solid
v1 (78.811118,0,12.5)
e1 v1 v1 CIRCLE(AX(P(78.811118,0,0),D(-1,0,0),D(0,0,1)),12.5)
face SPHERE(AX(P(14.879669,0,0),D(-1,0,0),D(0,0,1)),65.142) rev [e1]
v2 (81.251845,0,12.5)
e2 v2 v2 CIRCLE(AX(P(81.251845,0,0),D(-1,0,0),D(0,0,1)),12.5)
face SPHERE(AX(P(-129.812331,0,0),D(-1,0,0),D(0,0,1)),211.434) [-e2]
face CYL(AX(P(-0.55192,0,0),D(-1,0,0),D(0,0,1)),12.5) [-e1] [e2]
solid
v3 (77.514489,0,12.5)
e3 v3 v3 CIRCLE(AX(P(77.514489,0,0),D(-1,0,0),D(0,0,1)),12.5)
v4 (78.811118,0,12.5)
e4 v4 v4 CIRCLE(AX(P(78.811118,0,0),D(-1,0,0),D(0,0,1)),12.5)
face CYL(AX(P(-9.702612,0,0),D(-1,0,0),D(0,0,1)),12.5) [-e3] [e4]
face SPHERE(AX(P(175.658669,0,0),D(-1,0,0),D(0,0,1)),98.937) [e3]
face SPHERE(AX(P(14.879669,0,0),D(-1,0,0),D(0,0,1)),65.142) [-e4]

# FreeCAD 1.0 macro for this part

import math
import FreeCAD as App
import Part
import Sketcher
from FreeCAD import Vector
Q = App.Units.Quantity

doc = App.newDocument("Part")
body = doc.addObject("PartDesign::Body", "Body")

# Sketch on XZ plane
sketch1 = doc.addObject("Sketcher::SketchObject", "Sketch")
body.addObject(sketch1)
sketch1.AttachmentSupport = (doc.XZ_Plane, [""])
sketch1.MapMode = "FlatFace"
sketch1.addGeometry([
    Part.ArcOfCircle(Part.Circle(Vector(175.7, 0, 0), Vector(0, 0, 1), 98.9), math.radians(180), math.radians(187.26)),
    Part.LineSegment(Vector(76.7, 0, 0), Vector(80, 0, 0)),
    Part.ArcOfCircle(Part.Circle(Vector(14.9, 0, 0), Vector(0, 0, 1), 65.1), math.radians(-11.06), math.radians(0)),
    Part.LineSegment(Vector(78.8, -12.5, 0), Vector(77.5, -12.5, 0)),
], False)
sketch1.addConstraint([
    Sketcher.Constraint("Coincident", 0, 1, 1, 1),
    Sketcher.Constraint("Coincident", 1, 2, 2, 2),
    Sketcher.Constraint("Coincident", 2, 1, 3, 1),
    Sketcher.Constraint("Coincident", 3, 2, 0, 2),
    Sketcher.Constraint("Horizontal", 1),
    Sketcher.Constraint("Horizontal", 3),
    Sketcher.Constraint("PointOnObject", 0, 3, -1),
    Sketcher.Constraint("PointOnObject", 2, 3, -1),
    Sketcher.Constraint("PointOnObject", 0, 1, -1),
    Sketcher.Constraint("DistanceX", 1, 1, 1, 2, Q("3.3 mm")),
    Sketcher.Constraint("Radius", 0, Q("98.937 mm")),
    Sketcher.Constraint("Radius", 2, Q("65.142 mm")),
    Sketcher.Constraint("DistanceY", 2, 1, -1, 1, Q("12.5 mm")),
    Sketcher.Constraint("DistanceX", -1, 1, 0, 3, Q("175.658669 mm")),
])
revolution = doc.addObject("PartDesign::Revolution", "Revolution")
body.addObject(revolution)
revolution.Profile = sketch1
revolution.ReferenceAxis = (sketch1, ["H_Axis"])
revolution.Angle = 360
body2 = doc.addObject("PartDesign::Body", "Body001")

# Sketch on XZ plane
sketch2 = doc.addObject("Sketcher::SketchObject", "Sketch001")
body2.addObject(sketch2)
sketch2.AttachmentSupport = (doc.getObject("XZ_Plane001"), [""])
sketch2.MapMode = "FlatFace"
sketch2.addGeometry([
    Part.LineSegment(Vector(81.3, -12.5, 0), Vector(78.8, -12.5, 0)),
    Part.ArcOfCircle(Part.Circle(Vector(14.9, 0, 0), Vector(0, 0, 1), 65.1), math.radians(-11.06), math.radians(0)),
    Part.LineSegment(Vector(80, 0, 0), Vector(81.6, 0, 0)),
    Part.ArcOfCircle(Part.Circle(Vector(-129.8, 0, 0), Vector(0, 0, 1), 211.4), math.radians(-3.39), math.radians(0)),
], False)
sketch2.addConstraint([
    Sketcher.Constraint("Coincident", 0, 2, 1, 1),
    Sketcher.Constraint("Coincident", 1, 2, 2, 1),
    Sketcher.Constraint("Coincident", 2, 2, 3, 2),
    Sketcher.Constraint("Coincident", 3, 1, 0, 1),
    Sketcher.Constraint("Horizontal", 0),
    Sketcher.Constraint("Horizontal", 2),
    Sketcher.Constraint("PointOnObject", 1, 3, -1),
    Sketcher.Constraint("PointOnObject", 3, 3, -1),
    Sketcher.Constraint("PointOnObject", 1, 2, -1),
    Sketcher.Constraint("DistanceX", 2, 1, 2, 2, Q("1.6 mm")),
    Sketcher.Constraint("Radius", 1, Q("65.142 mm")),
    Sketcher.Constraint("Radius", 3, Q("211.434 mm")),
    Sketcher.Constraint("DistanceY", 0, 2, -1, 1, Q("12.5 mm")),
    Sketcher.Constraint("DistanceX", -1, 1, 1, 3, Q("14.879669 mm")),
])
revolution2 = doc.addObject("PartDesign::Revolution", "Revolution001")
body2.addObject(revolution2)
revolution2.Profile = sketch2
revolution2.ReferenceAxis = (sketch2, ["H_Axis"])
revolution2.Angle = 360

doc.recompute()
